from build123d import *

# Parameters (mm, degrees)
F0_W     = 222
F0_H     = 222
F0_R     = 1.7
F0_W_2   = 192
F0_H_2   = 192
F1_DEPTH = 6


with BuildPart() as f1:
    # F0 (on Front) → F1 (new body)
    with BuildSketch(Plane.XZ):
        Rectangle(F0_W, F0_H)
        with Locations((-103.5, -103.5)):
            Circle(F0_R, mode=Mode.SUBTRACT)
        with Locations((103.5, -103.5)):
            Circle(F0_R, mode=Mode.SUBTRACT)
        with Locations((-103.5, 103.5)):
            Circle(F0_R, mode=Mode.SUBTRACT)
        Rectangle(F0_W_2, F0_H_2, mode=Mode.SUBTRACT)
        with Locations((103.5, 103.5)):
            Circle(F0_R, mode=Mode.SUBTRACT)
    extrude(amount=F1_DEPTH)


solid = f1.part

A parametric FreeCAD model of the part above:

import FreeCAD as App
import Part
import Sketcher


def add_polygon(sketch, points):
    """Adds a closed chain of lines whose ends are joined by coincident constraints."""
    first, n = sketch.GeometryCount, len(points)
    for a, b in zip(points, points[1:] + points[:1]):
        sketch.addGeometry(Part.LineSegment(App.Vector(*a, 0), App.Vector(*b, 0)), False)
    for i in range(n):
        sketch.addConstraint(Sketcher.Constraint("Coincident", first + i, 2, first + (i + 1) % n, 1))

doc = App.newDocument("Part")
body = doc.addObject("PartDesign::Body", "Body")

sketch1 = body.newObject("Sketcher::SketchObject", "Sketch")
sketch1.AttachmentSupport = (doc.getObject("XZ_Plane"), [""])
sketch1.MapMode = "FlatFace"
add_polygon(sketch1, [(-111, 111), (-111, -111), (111, -111), (111, 111)])
sketch1.addGeometry(Part.Circle(App.Vector(-103.5, -103.5, 0), App.Vector(0, 0, 1), 1.7), False)
sketch1.addGeometry(Part.Circle(App.Vector(103.5, -103.5, 0), App.Vector(0, 0, 1), 1.7), False)
sketch1.addGeometry(Part.Circle(App.Vector(-103.5, 103.5, 0), App.Vector(0, 0, 1), 1.7), False)
add_polygon(sketch1, [(96, -96), (-96, -96), (-96, 96), (96, 96)])
sketch1.addGeometry(Part.Circle(App.Vector(103.5, 103.5, 0), App.Vector(0, 0, 1), 1.7), False)
sketch1.addConstraint([
    Sketcher.Constraint("Vertical", 0),
    Sketcher.Constraint("Horizontal", 1),
    Sketcher.Constraint("Vertical", 2),
    Sketcher.Constraint("Horizontal", 3),
    Sketcher.Constraint("Horizontal", 7),
    Sketcher.Constraint("Vertical", 8),
    Sketcher.Constraint("Horizontal", 9),
    Sketcher.Constraint("Vertical", 10),
    Sketcher.Constraint("Equal", 4, 5),
    Sketcher.Constraint("Equal", 5, 6),
    Sketcher.Constraint("Equal", 6, 11),
    Sketcher.Constraint("Symmetric", 5, 3, 6, 3, -1, 1),
    Sketcher.Constraint("Symmetric", 4, 3, 11, 3, -1, 1),
    Sketcher.Constraint("Symmetric", 0, 2, 2, 2, -1, 1),
    Sketcher.Constraint("Symmetric", 7, 2, 9, 2, -1, 1),
    Sketcher.Constraint("Symmetric", 4, 3, 5, 3, -2),
    Sketcher.Constraint("Equal", 3, 0),
    Sketcher.Constraint("Equal", 9, 8),
    Sketcher.Constraint("Diameter", 4, 3.4),
    Sketcher.Constraint("DistanceX", 1, 1, 1, 2, 222.0),
    Sketcher.Constraint("DistanceX", 7, 2, 7, 1, 192.0),
    Sketcher.Constraint("DistanceX", 4, 3, 5, 3, 207.0),
    Sketcher.Constraint("DistanceY", 4, 3, 6, 3, 207.0),
])
pad1 = body.newObject("PartDesign::Pad", "Pad")
pad1.Profile = sketch1
pad1.Length = 6

doc.recompute()
